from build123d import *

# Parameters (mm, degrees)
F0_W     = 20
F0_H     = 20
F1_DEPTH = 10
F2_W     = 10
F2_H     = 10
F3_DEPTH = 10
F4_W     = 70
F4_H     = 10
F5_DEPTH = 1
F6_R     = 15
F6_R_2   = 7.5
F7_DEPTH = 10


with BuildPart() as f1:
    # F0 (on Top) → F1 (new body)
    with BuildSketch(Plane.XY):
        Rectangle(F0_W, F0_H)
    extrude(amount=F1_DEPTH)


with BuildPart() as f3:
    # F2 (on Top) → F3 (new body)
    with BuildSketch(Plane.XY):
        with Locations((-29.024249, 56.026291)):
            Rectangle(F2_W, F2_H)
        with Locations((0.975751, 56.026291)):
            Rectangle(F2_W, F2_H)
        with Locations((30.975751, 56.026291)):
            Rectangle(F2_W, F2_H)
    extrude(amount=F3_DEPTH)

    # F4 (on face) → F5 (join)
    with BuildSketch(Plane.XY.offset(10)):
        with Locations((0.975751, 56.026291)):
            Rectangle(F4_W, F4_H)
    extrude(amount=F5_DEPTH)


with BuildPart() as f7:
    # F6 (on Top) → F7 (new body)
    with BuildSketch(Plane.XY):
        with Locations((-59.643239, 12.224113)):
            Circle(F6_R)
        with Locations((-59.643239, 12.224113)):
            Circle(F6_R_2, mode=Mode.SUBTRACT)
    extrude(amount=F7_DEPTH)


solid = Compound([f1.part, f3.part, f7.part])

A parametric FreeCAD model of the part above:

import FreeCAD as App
import Part
import Sketcher
from FreeCAD import Vector
Q = App.Units.Quantity


def add_polygon(sketch, points):
    """Adds a closed chain of lines whose ends are joined by coincident constraints."""
    first, n = sketch.GeometryCount, len(points)
    for a, b in zip(points, points[1:] + points[:1]):
        sketch.addGeometry(Part.LineSegment(App.Vector(*a, 0), App.Vector(*b, 0)), False)
    for i in range(n):
        sketch.addConstraint(Sketcher.Constraint("Coincident", first + i, 2, first + (i + 1) % n, 1))

doc = App.newDocument("Part")
body = doc.addObject("PartDesign::Body", "Body")

sketch1 = body.newObject("Sketcher::SketchObject", "Sketch")
sketch1.AttachmentSupport = (doc.getObject("XY_Plane"), [""])
sketch1.MapMode = "FlatFace"
add_polygon(sketch1, [(-10, 10), (-10, -10), (10, -10), (10, 10)])
sketch1.addConstraint(Sketcher.Constraint("Vertical", 0))
sketch1.addConstraint(Sketcher.Constraint("Horizontal", 1))
sketch1.addConstraint(Sketcher.Constraint("Vertical", 2))
sketch1.addConstraint(Sketcher.Constraint("Horizontal", 3))
sketch1.addConstraint(Sketcher.Constraint("Symmetric", 0, 2, 2, 2, -1, 1))
sketch1.addConstraint(Sketcher.Constraint("Equal", 3, 0))
sketch1.addConstraint(Sketcher.Constraint("DistanceX", 1, 1, 1, 2, Q("20 mm")))
pad1 = body.newObject("PartDesign::Pad", "Pad")
pad1.Profile = sketch1
pad1.Length = 10
body2 = doc.addObject("PartDesign::Body", "Body001")
body2.AllowCompound = True

sketch2 = body2.newObject("Sketcher::SketchObject", "Sketch001")
sketch2.AttachmentSupport = (doc.getObject("XY_Plane001"), [""])
sketch2.MapMode = "FlatFace"
add_polygon(sketch2, [(-34, 61), (-34, 51), (-24, 51), (-24, 61)])
add_polygon(sketch2, [(-4, 61), (-4, 51), (6, 51), (6, 61)])
add_polygon(sketch2, [(26, 61), (26, 51), (36, 51), (36, 61)])
sketch2.addConstraint(Sketcher.Constraint("Vertical", 0))
sketch2.addConstraint(Sketcher.Constraint("Horizontal", 1))
sketch2.addConstraint(Sketcher.Constraint("Vertical", 2))
sketch2.addConstraint(Sketcher.Constraint("Horizontal", 3))
sketch2.addConstraint(Sketcher.Constraint("Vertical", 4))
sketch2.addConstraint(Sketcher.Constraint("Horizontal", 5))
sketch2.addConstraint(Sketcher.Constraint("Vertical", 6))
sketch2.addConstraint(Sketcher.Constraint("Horizontal", 7))
sketch2.addConstraint(Sketcher.Constraint("Vertical", 8))
sketch2.addConstraint(Sketcher.Constraint("Horizontal", 9))
sketch2.addConstraint(Sketcher.Constraint("Vertical", 10))
sketch2.addConstraint(Sketcher.Constraint("Horizontal", 11))
sketch2.addConstraint(Sketcher.Constraint("Horizontal", 1, 2, 4, 2))
sketch2.addConstraint(Sketcher.Constraint("Horizontal", 3, 2, 6, 2))
sketch2.addConstraint(Sketcher.Constraint("Horizontal", 5, 2, 8, 2))
sketch2.addConstraint(Sketcher.Constraint("Horizontal", 7, 2, 10, 2))
sketch2.addConstraint(Sketcher.Constraint("Equal", 3, 5))
sketch2.addConstraint(Sketcher.Constraint("Equal", 7, 9))
sketch2.addConstraint(Sketcher.Constraint("Equal", 11, 0))
sketch2.addConstraint(Sketcher.Constraint("DistanceX", 1, 1, 1, 2, Q("10 mm")))
sketch2.addConstraint(Sketcher.Constraint("DistanceX", 1, 2, 4, 2, Q("20 mm")))
sketch2.addConstraint(Sketcher.Constraint("DistanceX", 5, 2, 8, 2, Q("20 mm")))
sketch2.addConstraint(Sketcher.Constraint("DistanceX", 0, 2, -1, 1, Q("34.024249 mm")))
sketch2.addConstraint(Sketcher.Constraint("DistanceY", -1, 1, 0, 2, Q("51.026291 mm")))
pad2 = body2.newObject("PartDesign::Pad", "Pad001")
pad2.Profile = sketch2
pad2.Length = 10

sketch3 = body2.newObject("Sketcher::SketchObject", "Sketch002")
sketch3.AttachmentSupport = (doc.getObject("XY_Plane001"), [""])
sketch3.MapMode = "FlatFace"
sketch3.AttachmentOffset = App.Placement(Vector(0, 0, 10), App.Rotation())
add_polygon(sketch3, [(-34, 61), (-34, 51), (36, 51), (36, 61)])
sketch3.addConstraint(Sketcher.Constraint("Vertical", 0))
sketch3.addConstraint(Sketcher.Constraint("Horizontal", 1))
sketch3.addConstraint(Sketcher.Constraint("Vertical", 2))
sketch3.addConstraint(Sketcher.Constraint("Horizontal", 3))
sketch3.addConstraint(Sketcher.Constraint("DistanceX", 1, 1, 1, 2, Q("70 mm")))
sketch3.addConstraint(Sketcher.Constraint("DistanceY", 0, 2, 0, 1, Q("10 mm")))
sketch3.addConstraint(Sketcher.Constraint("DistanceX", 0, 2, -1, 1, Q("34.024249 mm")))
sketch3.addConstraint(Sketcher.Constraint("DistanceY", -1, 1, 0, 2, Q("51.026291 mm")))
pad3 = body2.newObject("PartDesign::Pad", "Pad002")
pad3.Profile = sketch3
pad3.Length = 1
body3 = doc.addObject("PartDesign::Body", "Body002")

sketch4 = body3.newObject("Sketcher::SketchObject", "Sketch003")
sketch4.AttachmentSupport = (doc.getObject("XY_Plane002"), [""])
sketch4.MapMode = "FlatFace"
sketch4.addGeometry(Part.Circle(Vector(-60, 12, 0), Vector(0, 0, 1), 15), False)
sketch4.addGeometry(Part.Circle(Vector(-60, 12, 0), Vector(0, 0, 1), 8), False)
sketch4.addConstraint(Sketcher.Constraint("Coincident", 1, 3, 0, 3))
sketch4.addConstraint(Sketcher.Constraint("Diameter", 0, Q("30 mm")))
sketch4.addConstraint(Sketcher.Constraint("Diameter", 1, Q("15 mm")))
sketch4.addConstraint(Sketcher.Constraint("DistanceX", 0, 3, -1, 1, Q("59.643239 mm")))
sketch4.addConstraint(Sketcher.Constraint("DistanceY", -1, 1, 0, 3, Q("12.224113 mm")))
pad4 = body3.newObject("PartDesign::Pad", "Pad003")
pad4.Profile = sketch4
pad4.Length = 10

doc.recompute()
